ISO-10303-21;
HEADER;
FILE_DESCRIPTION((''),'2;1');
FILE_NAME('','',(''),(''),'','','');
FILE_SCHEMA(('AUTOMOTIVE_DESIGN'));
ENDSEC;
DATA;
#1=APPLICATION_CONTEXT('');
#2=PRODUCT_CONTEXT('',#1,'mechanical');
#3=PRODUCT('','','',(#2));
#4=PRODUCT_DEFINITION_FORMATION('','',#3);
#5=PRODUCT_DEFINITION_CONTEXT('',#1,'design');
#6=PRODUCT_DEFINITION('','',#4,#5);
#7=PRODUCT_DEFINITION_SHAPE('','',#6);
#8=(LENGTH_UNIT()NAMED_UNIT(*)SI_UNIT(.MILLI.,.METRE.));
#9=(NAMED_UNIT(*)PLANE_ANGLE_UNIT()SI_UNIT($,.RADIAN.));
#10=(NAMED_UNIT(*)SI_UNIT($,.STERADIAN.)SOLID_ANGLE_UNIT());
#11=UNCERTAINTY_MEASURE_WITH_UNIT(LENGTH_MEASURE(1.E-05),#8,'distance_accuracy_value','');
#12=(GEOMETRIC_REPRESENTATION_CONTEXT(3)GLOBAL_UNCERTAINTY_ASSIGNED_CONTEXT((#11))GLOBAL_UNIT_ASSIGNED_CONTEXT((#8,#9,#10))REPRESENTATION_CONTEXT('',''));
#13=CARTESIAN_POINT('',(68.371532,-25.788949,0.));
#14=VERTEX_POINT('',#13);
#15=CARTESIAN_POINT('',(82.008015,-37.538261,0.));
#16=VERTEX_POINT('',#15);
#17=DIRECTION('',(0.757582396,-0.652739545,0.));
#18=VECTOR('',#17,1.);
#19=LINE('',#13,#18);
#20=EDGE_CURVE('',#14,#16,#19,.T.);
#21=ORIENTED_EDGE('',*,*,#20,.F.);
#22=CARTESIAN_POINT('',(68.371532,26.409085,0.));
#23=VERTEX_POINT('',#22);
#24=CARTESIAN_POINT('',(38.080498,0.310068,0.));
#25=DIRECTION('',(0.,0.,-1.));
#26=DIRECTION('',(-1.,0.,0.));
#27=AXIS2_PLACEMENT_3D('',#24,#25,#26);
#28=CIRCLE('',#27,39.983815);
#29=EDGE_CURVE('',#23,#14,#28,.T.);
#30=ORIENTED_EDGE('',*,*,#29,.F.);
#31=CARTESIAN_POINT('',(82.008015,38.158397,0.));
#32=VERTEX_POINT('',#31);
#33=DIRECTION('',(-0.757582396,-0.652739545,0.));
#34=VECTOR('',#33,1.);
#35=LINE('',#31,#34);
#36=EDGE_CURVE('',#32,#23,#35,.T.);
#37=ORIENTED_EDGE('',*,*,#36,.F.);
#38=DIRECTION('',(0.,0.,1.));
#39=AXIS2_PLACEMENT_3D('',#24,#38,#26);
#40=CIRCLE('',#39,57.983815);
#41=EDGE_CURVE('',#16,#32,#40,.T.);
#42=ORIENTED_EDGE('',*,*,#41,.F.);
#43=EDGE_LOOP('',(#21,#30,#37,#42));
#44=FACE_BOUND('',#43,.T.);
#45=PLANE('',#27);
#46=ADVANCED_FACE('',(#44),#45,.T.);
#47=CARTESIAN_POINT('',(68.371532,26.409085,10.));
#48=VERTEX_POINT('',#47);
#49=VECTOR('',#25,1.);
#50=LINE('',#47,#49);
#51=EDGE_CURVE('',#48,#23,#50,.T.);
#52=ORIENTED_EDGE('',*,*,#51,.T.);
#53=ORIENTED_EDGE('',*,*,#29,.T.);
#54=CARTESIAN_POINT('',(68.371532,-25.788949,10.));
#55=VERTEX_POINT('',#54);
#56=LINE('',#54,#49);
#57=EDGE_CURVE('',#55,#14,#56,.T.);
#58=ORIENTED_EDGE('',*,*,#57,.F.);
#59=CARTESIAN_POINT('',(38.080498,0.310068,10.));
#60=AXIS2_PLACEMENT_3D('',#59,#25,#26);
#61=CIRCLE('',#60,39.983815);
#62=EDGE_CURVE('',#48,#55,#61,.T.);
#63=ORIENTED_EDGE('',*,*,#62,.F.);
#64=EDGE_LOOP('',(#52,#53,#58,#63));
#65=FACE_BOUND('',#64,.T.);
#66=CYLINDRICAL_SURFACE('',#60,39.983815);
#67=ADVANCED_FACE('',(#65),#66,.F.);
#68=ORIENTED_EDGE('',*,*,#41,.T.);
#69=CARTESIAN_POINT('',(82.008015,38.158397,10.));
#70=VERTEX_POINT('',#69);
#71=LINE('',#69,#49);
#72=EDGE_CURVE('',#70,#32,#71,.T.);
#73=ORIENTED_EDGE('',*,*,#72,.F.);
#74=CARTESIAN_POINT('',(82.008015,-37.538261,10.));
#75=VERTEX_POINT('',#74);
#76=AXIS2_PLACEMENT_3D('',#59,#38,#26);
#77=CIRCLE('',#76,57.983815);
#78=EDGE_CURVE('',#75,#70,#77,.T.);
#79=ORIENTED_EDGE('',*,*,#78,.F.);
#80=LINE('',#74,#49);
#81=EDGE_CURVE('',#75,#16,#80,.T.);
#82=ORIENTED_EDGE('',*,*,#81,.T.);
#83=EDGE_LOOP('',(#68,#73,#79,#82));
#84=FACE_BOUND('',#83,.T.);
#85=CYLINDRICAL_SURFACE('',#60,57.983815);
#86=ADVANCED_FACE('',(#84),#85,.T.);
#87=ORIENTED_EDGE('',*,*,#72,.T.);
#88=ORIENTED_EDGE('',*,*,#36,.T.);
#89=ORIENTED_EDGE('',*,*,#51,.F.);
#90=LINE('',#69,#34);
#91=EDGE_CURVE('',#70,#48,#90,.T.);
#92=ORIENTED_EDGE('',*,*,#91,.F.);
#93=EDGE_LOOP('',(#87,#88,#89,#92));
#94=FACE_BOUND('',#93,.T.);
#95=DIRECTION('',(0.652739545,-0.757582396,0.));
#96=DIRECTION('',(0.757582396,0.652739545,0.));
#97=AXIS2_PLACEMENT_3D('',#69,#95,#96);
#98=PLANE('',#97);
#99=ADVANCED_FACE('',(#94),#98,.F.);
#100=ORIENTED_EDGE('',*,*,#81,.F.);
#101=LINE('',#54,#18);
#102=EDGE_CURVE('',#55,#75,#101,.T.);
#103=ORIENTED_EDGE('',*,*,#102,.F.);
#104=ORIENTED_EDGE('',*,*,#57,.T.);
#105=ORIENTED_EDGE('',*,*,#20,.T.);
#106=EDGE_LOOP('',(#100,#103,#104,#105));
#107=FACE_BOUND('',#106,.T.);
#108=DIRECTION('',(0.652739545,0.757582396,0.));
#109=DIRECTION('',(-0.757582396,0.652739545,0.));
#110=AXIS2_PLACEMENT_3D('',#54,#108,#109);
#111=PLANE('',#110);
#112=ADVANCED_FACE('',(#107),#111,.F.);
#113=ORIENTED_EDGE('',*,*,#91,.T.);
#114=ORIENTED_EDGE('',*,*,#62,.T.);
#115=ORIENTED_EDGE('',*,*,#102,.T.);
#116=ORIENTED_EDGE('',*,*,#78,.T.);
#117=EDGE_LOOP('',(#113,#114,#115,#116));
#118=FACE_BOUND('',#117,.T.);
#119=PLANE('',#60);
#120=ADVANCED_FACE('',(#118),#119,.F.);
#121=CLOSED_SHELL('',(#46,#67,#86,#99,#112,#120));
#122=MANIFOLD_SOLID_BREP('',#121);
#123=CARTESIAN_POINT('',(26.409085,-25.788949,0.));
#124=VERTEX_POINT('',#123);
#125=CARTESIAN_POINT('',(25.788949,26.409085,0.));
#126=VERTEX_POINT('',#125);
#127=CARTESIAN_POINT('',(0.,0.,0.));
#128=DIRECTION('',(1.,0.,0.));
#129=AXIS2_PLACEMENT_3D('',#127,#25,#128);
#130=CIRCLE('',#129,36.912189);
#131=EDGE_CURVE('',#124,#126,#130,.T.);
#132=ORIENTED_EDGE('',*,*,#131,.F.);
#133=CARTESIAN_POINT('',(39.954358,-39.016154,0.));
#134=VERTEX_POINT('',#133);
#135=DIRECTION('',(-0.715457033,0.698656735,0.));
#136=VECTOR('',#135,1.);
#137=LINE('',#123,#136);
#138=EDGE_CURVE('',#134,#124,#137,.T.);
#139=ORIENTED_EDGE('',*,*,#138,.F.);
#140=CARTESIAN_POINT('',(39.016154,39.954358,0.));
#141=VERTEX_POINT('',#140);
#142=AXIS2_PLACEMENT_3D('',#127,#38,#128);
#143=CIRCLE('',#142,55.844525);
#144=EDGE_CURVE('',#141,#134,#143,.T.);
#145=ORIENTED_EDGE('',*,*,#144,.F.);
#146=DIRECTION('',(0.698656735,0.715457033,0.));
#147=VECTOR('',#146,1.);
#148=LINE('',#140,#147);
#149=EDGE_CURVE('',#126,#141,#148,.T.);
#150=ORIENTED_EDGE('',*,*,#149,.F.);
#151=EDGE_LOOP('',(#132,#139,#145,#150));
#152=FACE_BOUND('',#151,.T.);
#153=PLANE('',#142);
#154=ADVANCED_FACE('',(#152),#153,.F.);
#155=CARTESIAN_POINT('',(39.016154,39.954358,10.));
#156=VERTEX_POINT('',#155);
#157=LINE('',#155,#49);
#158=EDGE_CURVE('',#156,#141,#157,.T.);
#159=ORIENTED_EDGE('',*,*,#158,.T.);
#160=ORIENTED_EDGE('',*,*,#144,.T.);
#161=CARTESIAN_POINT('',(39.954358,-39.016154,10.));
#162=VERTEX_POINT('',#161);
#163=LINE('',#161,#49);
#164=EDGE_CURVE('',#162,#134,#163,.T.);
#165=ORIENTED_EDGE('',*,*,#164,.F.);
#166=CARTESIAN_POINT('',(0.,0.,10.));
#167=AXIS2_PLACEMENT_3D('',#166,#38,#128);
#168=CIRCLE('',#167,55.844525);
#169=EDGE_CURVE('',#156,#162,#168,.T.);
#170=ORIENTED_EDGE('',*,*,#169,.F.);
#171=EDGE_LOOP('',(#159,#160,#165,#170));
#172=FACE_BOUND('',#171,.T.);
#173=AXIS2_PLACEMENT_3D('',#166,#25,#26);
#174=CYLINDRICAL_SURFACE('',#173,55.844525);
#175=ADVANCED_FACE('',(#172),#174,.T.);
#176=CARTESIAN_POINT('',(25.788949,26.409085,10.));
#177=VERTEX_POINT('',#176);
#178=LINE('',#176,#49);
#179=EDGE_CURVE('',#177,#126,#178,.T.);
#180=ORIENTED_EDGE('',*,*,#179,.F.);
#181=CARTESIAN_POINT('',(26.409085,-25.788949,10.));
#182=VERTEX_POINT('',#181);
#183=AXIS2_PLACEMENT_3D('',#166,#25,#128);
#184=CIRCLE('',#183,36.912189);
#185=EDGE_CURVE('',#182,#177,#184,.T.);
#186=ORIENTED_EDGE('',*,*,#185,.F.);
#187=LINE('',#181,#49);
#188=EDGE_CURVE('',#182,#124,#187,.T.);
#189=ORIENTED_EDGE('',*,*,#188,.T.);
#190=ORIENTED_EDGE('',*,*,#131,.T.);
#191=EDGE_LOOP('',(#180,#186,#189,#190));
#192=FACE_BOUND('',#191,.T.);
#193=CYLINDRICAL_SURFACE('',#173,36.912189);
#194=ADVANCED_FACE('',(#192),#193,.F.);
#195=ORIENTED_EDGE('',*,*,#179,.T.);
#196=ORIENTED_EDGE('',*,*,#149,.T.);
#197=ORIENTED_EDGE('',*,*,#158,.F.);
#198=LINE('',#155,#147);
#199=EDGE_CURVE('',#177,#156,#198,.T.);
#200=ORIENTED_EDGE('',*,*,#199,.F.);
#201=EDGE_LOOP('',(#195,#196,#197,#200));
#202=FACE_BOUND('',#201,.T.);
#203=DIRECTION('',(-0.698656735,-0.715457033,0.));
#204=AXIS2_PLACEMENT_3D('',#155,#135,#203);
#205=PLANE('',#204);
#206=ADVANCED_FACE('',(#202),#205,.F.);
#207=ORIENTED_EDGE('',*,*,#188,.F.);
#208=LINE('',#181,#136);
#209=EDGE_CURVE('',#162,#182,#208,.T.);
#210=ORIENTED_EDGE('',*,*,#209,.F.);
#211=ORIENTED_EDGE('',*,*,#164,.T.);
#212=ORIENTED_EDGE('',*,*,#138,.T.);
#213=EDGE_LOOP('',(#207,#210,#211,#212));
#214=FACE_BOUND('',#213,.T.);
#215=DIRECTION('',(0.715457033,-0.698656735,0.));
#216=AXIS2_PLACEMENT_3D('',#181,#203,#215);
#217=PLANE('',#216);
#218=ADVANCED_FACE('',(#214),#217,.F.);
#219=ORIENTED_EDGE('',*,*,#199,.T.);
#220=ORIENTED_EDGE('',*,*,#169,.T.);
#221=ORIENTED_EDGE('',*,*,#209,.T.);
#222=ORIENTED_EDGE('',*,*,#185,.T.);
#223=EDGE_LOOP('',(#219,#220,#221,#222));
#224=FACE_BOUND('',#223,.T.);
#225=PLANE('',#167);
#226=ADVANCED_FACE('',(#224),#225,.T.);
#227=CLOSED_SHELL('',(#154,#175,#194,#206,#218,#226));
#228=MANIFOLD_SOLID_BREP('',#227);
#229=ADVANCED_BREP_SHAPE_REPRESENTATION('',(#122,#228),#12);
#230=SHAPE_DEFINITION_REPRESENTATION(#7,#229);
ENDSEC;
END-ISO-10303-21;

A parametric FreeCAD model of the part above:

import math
import FreeCAD as App
import Part
import Sketcher
from FreeCAD import Vector
Q = App.Units.Quantity

doc = App.newDocument("Part")
params = doc.addObject("Spreadsheet::Sheet", "Params")
for row, (alias, value) in enumerate([
    ("pad1_length", "10 mm"),
    ("sketch2_length", "18 mm"),
    ("pad2_length", "10 mm"),
], start=1):
    params.set(f"A{row}", alias)
    params.set(f"B{row}", "=" + value)
    params.setAlias(f"B{row}", alias)

body = doc.addObject("PartDesign::Body", "Body")

# Sketch on XY plane
sketch1 = body.newObject("Sketcher::SketchObject", "Sketch")
sketch1.AttachmentSupport = (doc.getObject("XY_Plane"), [""])
sketch1.MapMode = "FlatFace"
sketch1.addGeometry(Part.LineSegment(Vector(25.788949, 26.409085, 0), Vector(39.016154, 39.954358, 0)), False)
sketch1.addGeometry(Part.ArcOfCircle(Part.Circle(Vector(0, 0, 0), Vector(0, 0, 1), 55.844525), math.radians(45.680667), math.radians(315.680667)), False)
sketch1.addGeometry(Part.LineSegment(Vector(39.954358, -39.016154, 0), Vector(26.409085, -25.788949, 0)), False)
sketch1.addGeometry(Part.ArcOfCircle(Part.Circle(Vector(0, 0, 0), Vector(0, 0, 1), 36.912189), math.radians(45.680667), math.radians(315.680667)), False)
sketch1.addConstraint(Sketcher.Constraint("Coincident", 0, 2, 1, 1))
sketch1.addConstraint(Sketcher.Constraint("Coincident", 1, 2, 2, 1))
sketch1.addConstraint(Sketcher.Constraint("Coincident", 2, 2, 3, 2))
sketch1.addConstraint(Sketcher.Constraint("Coincident", 3, 1, 0, 1))
sketch1.addConstraint(Sketcher.Constraint("Coincident", 1, 3, -1, 1))
sketch1.addConstraint(Sketcher.Constraint("Coincident", 3, 3, -1, 1))
sketch1.addConstraint(Sketcher.Constraint("Perpendicular", 0, 2))
sketch1.addConstraint(Sketcher.Constraint("Radius", 3, Q("36.912189 mm")))
sketch1.addConstraint(Sketcher.Constraint("Radius", 1, Q("55.844525 mm")))
sketch1.addConstraint(Sketcher.Constraint("DistanceY", -1, 1, 0, 2, Q("39.954358 mm")))
sketch1.addConstraint(Sketcher.Constraint("DistanceX", -1, 1, 1, 2, Q("39.954358 mm")))
sketch1.addConstraint(Sketcher.Constraint("DistanceY", 2, 2, -1, 1, Q("25.788949 mm")))
pad1 = body.newObject("PartDesign::Pad", "Pad")
pad1.Profile = sketch1
pad1.setExpression("Length", "Params.pad1_length")
body2 = doc.addObject("PartDesign::Body", "Body001")

# Sketch on XY plane
sketch2 = body2.newObject("Sketcher::SketchObject", "Sketch001")
sketch2.AttachmentSupport = (doc.getObject("XY_Plane001"), [""])
sketch2.MapMode = "FlatFace"
sketch2.addGeometry(Part.LineSegment(Vector(82.008015, 38.158397, 0), Vector(68.371532, 26.409085, 0)), False)
sketch2.addGeometry(Part.ArcOfCircle(Part.Circle(Vector(38.080498, 0.310068, 0), Vector(0, 0, 1), 39.983815), math.radians(-40.748472), math.radians(40.748472)), False)
sketch2.addGeometry(Part.LineSegment(Vector(68.371532, -25.788949, 0), Vector(82.008015, -37.538261, 0)), False)
sketch2.addGeometry(Part.ArcOfCircle(Part.Circle(Vector(38.080498, 0.310068, 0), Vector(0, 0, 1), 57.983815), math.radians(-40.748472), math.radians(40.748472)), False)
sketch2.addConstraint(Sketcher.Constraint("Coincident", 0, 2, 1, 2))
sketch2.addConstraint(Sketcher.Constraint("Coincident", 1, 1, 2, 1))
sketch2.addConstraint(Sketcher.Constraint("Coincident", 2, 2, 3, 1))
sketch2.addConstraint(Sketcher.Constraint("Coincident", 3, 2, 0, 1))
sketch2.addConstraint(Sketcher.Constraint("Coincident", 3, 3, 1, 3))
sketch2.addConstraint(Sketcher.Constraint("Vertical", 0, 2, 1, 1))
sketch2.addConstraint(Sketcher.Constraint("Vertical", 2, 2, 3, 2))
sketch2.addConstraint(Sketcher.Constraint("Distance", 0, Q("18 mm")))
sketch2.addConstraint(Sketcher.Constraint("Radius", 1, Q("39.983815 mm")))
sketch2.addConstraint(Sketcher.Constraint("DistanceX", -1, 1, 0, 2, Q("68.371532 mm")))
sketch2.addConstraint(Sketcher.Constraint("DistanceY", 1, 1, -1, 1, Q("25.788949 mm")))
sketch2.addConstraint(Sketcher.Constraint("DistanceY", 2, 2, -1, 1, Q("37.538261 mm")))
sketch2.addConstraint(Sketcher.Constraint("DistanceY", 2, 2, 1, 3, Q("37.848329 mm")))
sketch2.setExpression("Constraints[7]", "Params.sketch2_length")
pad2 = body2.newObject("PartDesign::Pad", "Pad001")
pad2.Profile = sketch2
pad2.setExpression("Length", "Params.pad2_length")

doc.recompute()
